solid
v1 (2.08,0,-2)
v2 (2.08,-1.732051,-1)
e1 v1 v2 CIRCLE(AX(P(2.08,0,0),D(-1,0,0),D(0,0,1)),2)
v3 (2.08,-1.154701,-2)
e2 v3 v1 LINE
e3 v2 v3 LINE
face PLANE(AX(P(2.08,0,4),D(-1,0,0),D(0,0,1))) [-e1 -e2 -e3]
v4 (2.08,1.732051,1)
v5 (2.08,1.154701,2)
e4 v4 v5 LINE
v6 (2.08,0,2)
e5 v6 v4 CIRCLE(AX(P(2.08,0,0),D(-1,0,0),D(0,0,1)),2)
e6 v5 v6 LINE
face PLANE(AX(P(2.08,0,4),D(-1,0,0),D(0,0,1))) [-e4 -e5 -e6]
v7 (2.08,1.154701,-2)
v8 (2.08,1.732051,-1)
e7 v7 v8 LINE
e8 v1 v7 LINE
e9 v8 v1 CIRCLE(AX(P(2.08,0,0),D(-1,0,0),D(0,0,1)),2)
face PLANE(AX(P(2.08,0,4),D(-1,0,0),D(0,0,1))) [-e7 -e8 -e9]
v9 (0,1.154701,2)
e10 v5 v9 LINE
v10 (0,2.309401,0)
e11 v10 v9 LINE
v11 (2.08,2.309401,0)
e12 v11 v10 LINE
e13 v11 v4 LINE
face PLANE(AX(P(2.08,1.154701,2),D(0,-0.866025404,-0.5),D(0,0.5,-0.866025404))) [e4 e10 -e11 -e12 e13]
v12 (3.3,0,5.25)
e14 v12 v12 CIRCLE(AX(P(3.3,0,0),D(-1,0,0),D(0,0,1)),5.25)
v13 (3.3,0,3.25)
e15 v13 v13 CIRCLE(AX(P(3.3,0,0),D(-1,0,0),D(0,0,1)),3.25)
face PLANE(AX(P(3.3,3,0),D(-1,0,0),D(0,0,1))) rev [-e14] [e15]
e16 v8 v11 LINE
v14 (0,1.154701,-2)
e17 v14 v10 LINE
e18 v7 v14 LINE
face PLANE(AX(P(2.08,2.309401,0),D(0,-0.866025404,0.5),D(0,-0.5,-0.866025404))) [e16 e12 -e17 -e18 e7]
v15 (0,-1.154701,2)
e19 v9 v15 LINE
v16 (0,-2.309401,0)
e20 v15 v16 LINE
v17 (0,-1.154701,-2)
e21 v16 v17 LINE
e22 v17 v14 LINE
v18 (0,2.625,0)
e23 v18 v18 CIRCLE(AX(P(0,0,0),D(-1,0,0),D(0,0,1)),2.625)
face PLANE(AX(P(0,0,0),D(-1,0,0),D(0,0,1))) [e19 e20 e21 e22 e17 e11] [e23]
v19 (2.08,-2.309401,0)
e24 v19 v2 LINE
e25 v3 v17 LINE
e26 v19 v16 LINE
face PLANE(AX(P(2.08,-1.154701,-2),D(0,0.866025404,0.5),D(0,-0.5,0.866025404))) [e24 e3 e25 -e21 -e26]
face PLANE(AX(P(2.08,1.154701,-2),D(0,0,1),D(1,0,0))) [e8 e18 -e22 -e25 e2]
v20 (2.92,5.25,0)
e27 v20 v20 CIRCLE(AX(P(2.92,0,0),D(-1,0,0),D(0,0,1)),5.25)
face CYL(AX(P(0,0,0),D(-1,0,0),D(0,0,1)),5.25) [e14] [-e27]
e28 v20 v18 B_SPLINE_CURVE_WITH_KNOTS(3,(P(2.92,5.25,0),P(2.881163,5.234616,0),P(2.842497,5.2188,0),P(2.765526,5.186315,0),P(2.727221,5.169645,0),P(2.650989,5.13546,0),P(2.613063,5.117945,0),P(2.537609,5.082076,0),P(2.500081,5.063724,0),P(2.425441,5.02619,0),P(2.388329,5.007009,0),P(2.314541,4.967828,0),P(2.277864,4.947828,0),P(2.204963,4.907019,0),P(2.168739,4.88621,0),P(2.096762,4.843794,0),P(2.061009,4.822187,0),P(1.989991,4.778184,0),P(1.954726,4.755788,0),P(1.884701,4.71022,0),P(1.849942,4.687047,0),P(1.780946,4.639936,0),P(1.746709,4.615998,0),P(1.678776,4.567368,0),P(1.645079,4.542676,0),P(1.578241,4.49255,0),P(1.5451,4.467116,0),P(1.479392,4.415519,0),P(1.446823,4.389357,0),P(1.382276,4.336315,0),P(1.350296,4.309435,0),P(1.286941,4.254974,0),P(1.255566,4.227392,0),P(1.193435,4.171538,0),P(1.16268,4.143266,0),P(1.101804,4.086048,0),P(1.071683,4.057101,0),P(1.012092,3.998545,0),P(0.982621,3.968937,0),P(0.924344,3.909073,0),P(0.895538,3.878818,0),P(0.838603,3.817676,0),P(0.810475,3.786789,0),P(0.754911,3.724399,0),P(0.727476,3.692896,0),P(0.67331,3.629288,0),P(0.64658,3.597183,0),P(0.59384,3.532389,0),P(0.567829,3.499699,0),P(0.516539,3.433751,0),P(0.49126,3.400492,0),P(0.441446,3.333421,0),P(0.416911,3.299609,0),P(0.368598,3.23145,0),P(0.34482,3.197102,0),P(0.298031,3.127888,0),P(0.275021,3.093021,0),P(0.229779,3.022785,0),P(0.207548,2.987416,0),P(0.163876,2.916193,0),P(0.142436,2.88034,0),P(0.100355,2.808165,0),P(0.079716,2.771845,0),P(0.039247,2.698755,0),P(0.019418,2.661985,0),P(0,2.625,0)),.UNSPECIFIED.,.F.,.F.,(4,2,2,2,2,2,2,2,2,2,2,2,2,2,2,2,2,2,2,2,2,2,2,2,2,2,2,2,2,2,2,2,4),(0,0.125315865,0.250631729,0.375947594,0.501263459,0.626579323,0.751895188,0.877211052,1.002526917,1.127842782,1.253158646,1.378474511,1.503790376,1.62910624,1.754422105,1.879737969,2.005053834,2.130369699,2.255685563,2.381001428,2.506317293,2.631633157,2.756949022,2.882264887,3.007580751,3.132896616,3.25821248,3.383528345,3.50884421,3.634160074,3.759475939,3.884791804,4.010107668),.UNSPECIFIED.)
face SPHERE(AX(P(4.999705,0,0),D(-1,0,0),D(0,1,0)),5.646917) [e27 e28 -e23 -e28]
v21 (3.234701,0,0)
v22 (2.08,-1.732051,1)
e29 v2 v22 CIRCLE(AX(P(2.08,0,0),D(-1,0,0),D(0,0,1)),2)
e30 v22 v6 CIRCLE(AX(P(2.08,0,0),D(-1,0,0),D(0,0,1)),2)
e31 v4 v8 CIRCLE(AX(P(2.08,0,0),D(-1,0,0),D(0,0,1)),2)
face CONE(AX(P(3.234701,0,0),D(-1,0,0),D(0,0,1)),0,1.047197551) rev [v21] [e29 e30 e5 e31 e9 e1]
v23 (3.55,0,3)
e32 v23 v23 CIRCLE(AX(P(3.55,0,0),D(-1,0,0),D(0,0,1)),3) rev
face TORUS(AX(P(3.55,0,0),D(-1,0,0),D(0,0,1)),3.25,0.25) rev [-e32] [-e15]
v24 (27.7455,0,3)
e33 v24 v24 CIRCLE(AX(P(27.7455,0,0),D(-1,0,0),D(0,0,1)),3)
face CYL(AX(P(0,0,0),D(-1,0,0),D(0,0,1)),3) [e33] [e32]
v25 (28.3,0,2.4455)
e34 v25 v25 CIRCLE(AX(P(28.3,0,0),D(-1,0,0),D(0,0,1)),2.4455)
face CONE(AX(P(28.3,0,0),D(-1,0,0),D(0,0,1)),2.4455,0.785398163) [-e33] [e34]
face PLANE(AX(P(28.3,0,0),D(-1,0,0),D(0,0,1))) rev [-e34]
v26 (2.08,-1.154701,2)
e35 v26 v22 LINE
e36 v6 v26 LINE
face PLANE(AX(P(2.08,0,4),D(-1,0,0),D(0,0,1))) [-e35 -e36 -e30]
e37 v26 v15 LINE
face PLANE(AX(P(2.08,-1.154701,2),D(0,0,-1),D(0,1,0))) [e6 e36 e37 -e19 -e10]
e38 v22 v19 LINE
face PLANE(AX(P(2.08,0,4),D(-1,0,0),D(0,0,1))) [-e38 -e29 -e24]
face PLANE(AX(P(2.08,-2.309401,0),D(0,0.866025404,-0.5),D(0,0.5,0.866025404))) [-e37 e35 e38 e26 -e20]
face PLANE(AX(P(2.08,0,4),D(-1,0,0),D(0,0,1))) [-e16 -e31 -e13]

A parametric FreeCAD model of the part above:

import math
import FreeCAD as App
import Part
import Sketcher

V = App.Vector
Q = App.Units.Quantity


def edges_at(feature, points):
    """Names of the edges that pass closest to the given points."""
    edges = feature.Shape.Edges
    near = lambda p: min(range(len(edges)), key=lambda i: edges[i].distToShape(Part.Vertex(*p))[0])
    return sorted({f"Edge{near(p) + 1}" for p in points})

doc = App.newDocument("Part")
body = doc.addObject("PartDesign::Body", "Body")

# Sketch on XY plane
sketch1 = body.newObject("Sketcher::SketchObject", "Sketch")
sketch1.AttachmentSupport = (doc.getObject("XY_Plane"), [""])
sketch1.MapMode = "FlatFace"
sketch1.addGeometry(Part.LineSegment(V(28.3, 0, 0), V(28.3, 2.45, 0)), False)
sketch1.addGeometry(Part.LineSegment(V(28.3, 2.45, 0), V(27.75, 3, 0)), False)
sketch1.addGeometry(Part.LineSegment(V(27.75, 3, 0), V(3.3, 3, 0)), False)
sketch1.addGeometry(Part.LineSegment(V(3.3, 3, 0), V(3.3, 5.25, 0)), False)
sketch1.addGeometry(Part.LineSegment(V(3.3, 5.25, 0), V(2.92, 5.25, 0)), False)
sketch1.addGeometry(Part.ArcOfCircle(Part.Circle(V(5, 0, 0), V(0, 0, 1), 5.65), math.radians(112), math.radians(152)), False)
sketch1.addGeometry(Part.LineSegment(V(0, 2.62, 0), V(0, 0, 0)), False)
sketch1.addGeometry(Part.LineSegment(V(0, 0, 0), V(28.3, 0, 0)), False)
sketch1.addConstraint(Sketcher.Constraint("Coincident", 0, 2, 1, 1))
sketch1.addConstraint(Sketcher.Constraint("Coincident", 1, 2, 2, 1))
sketch1.addConstraint(Sketcher.Constraint("Coincident", 2, 2, 3, 1))
sketch1.addConstraint(Sketcher.Constraint("Coincident", 3, 2, 4, 1))
sketch1.addConstraint(Sketcher.Constraint("Coincident", 4, 2, 5, 1))
sketch1.addConstraint(Sketcher.Constraint("Coincident", 5, 2, 6, 1))
sketch1.addConstraint(Sketcher.Constraint("Coincident", 6, 2, 7, 1))
sketch1.addConstraint(Sketcher.Constraint("Coincident", 7, 2, 0, 1))
sketch1.addConstraint(Sketcher.Constraint("Vertical", 0))
sketch1.addConstraint(Sketcher.Constraint("Horizontal", 2))
sketch1.addConstraint(Sketcher.Constraint("Vertical", 3))
sketch1.addConstraint(Sketcher.Constraint("Horizontal", 4))
sketch1.addConstraint(Sketcher.Constraint("Vertical", 6))
sketch1.addConstraint(Sketcher.Constraint("Horizontal", 7))
sketch1.addConstraint(Sketcher.Constraint("Coincident", 6, 2, -1, 1))
sketch1.addConstraint(Sketcher.Constraint("PointOnObject", 5, 3, -1))
sketch1.addConstraint(Sketcher.Constraint("Angle", 1, Q("135 deg")))
sketch1.addConstraint(Sketcher.Constraint("DistanceX", 7, 1, 7, 2, Q("28.3 mm")))
sketch1.addConstraint(Sketcher.Constraint("DistanceY", -1, 1, 1, 2, Q("3 mm")))
sketch1.addConstraint(Sketcher.Constraint("DistanceX", 2, 2, 0, 2, Q("25 mm")))
sketch1.addConstraint(Sketcher.Constraint("DistanceX", 4, 2, 4, 1, Q("0.38 mm")))
sketch1.addConstraint(Sketcher.Constraint("DistanceY", 3, 1, 3, 2, Q("2.25 mm")))
sketch1.addConstraint(Sketcher.Constraint("DistanceY", 6, 2, 6, 1, Q("2.625 mm")))
sketch1.addConstraint(Sketcher.Constraint("DistanceX", 2, 2, 2, 1, Q("24.4455 mm")))
revolution = body.newObject("PartDesign::Revolution", "Revolution")
revolution.Profile = sketch1
revolution.ReferenceAxis = (sketch1, ["H_Axis"])
revolution.Angle = 360
doc.recompute()

fillet = body.newObject("PartDesign::Fillet", "Fillet")
fillet.Base = (revolution, edges_at(revolution, [(3.3, 0, -3)]))
fillet.Radius = 0.25

# Sketch on XY plane
sketch2 = body.newObject("Sketcher::SketchObject", "Sketch001")
sketch2.AttachmentSupport = (doc.getObject("XY_Plane"), [""])
sketch2.MapMode = "FlatFace"
sketch2.addGeometry(Part.LineSegment(V(2.1, 2, 0), V(0, 2, 0)), False)
sketch2.addGeometry(Part.LineSegment(V(0, 2, 0), V(0, 0, 0)), False)
sketch2.addGeometry(Part.LineSegment(V(0, 0, 0), V(3.2, 0, 0)), False)
sketch2.addGeometry(Part.LineSegment(V(3.2, 0, 0), V(2.1, 2, 0)), False)
sketch2.addConstraint(Sketcher.Constraint("Coincident", 0, 2, 1, 1))
sketch2.addConstraint(Sketcher.Constraint("Coincident", 1, 2, 2, 1))
sketch2.addConstraint(Sketcher.Constraint("Coincident", 2, 2, 3, 1))
sketch2.addConstraint(Sketcher.Constraint("Coincident", 3, 2, 0, 1))
sketch2.addConstraint(Sketcher.Constraint("Horizontal", 0))
sketch2.addConstraint(Sketcher.Constraint("Vertical", 1))
sketch2.addConstraint(Sketcher.Constraint("Horizontal", 2))
sketch2.addConstraint(Sketcher.Constraint("Coincident", 1, 2, -1, 1))
sketch2.addConstraint(Sketcher.Constraint("DistanceY", 1, 2, 1, 1, Q("2 mm")))
sketch2.addConstraint(Sketcher.Constraint("Angle", 3, Q("120 deg")))
sketch2.addConstraint(Sketcher.Constraint("DistanceX", 0, 2, 0, 1, Q("2.08 mm")))
groove = body.newObject("PartDesign::Groove", "Groove")
groove.Profile = sketch2
groove.ReferenceAxis = (sketch2, ["H_Axis"])
groove.Angle = 360

# Sketch on YZ plane
sketch3 = body.newObject("Sketcher::SketchObject", "Sketch002")
sketch3.AttachmentSupport = (doc.getObject("YZ_Plane"), [""])
sketch3.MapMode = "FlatFace"
sketch3.addGeometry(Part.LineSegment(V(1.2, 2, 0), V(-1.2, 2, 0)), False)
sketch3.addGeometry(Part.LineSegment(V(-1.2, 2, 0), V(-2.3, 0, 0)), False)
sketch3.addGeometry(Part.LineSegment(V(-2.3, 0, 0), V(-1.2, -2, 0)), False)
sketch3.addGeometry(Part.LineSegment(V(-1.2, -2, 0), V(1.2, -2, 0)), False)
sketch3.addGeometry(Part.LineSegment(V(1.2, -2, 0), V(2.3, 0, 0)), False)
sketch3.addGeometry(Part.LineSegment(V(2.3, 0, 0), V(1.2, 2, 0)), False)
sketch3.addConstraint(Sketcher.Constraint("Coincident", 0, 2, 1, 1))
sketch3.addConstraint(Sketcher.Constraint("Coincident", 1, 2, 2, 1))
sketch3.addConstraint(Sketcher.Constraint("Coincident", 2, 2, 3, 1))
sketch3.addConstraint(Sketcher.Constraint("Coincident", 3, 2, 4, 1))
sketch3.addConstraint(Sketcher.Constraint("Coincident", 4, 2, 5, 1))
sketch3.addConstraint(Sketcher.Constraint("Coincident", 5, 2, 0, 1))
sketch3.addConstraint(Sketcher.Constraint("Horizontal", 0))
sketch3.addConstraint(Sketcher.Constraint("Horizontal", 3))
sketch3.addConstraint(Sketcher.Constraint("Symmetric", 0, 2, 3, 2, -1, 1))
sketch3.addConstraint(Sketcher.Constraint("Symmetric", 1, 2, 4, 2, -1, 1))
sketch3.addConstraint(Sketcher.Constraint("PointOnObject", 1, 2, -1))
sketch3.addConstraint(Sketcher.Constraint("Parallel", 2, 5))
sketch3.addConstraint(Sketcher.Constraint("Vertical", 0, 2, 2, 2))
sketch3.addConstraint(Sketcher.Constraint("Angle", 1, Q("-120 deg")))
sketch3.addConstraint(Sketcher.Constraint("DistanceY", -1, 1, 0, 2, Q("2 mm")))
sketch3.addConstraint(Sketcher.Constraint("DistanceX", 0, 2, 0, 1, Q("2.309401 mm")))
pocket1 = body.newObject("PartDesign::Pocket", "Pocket")
pocket1.Profile = sketch3
pocket1.Length = 2.08
pocket1.Reversed = True

doc.recompute()
